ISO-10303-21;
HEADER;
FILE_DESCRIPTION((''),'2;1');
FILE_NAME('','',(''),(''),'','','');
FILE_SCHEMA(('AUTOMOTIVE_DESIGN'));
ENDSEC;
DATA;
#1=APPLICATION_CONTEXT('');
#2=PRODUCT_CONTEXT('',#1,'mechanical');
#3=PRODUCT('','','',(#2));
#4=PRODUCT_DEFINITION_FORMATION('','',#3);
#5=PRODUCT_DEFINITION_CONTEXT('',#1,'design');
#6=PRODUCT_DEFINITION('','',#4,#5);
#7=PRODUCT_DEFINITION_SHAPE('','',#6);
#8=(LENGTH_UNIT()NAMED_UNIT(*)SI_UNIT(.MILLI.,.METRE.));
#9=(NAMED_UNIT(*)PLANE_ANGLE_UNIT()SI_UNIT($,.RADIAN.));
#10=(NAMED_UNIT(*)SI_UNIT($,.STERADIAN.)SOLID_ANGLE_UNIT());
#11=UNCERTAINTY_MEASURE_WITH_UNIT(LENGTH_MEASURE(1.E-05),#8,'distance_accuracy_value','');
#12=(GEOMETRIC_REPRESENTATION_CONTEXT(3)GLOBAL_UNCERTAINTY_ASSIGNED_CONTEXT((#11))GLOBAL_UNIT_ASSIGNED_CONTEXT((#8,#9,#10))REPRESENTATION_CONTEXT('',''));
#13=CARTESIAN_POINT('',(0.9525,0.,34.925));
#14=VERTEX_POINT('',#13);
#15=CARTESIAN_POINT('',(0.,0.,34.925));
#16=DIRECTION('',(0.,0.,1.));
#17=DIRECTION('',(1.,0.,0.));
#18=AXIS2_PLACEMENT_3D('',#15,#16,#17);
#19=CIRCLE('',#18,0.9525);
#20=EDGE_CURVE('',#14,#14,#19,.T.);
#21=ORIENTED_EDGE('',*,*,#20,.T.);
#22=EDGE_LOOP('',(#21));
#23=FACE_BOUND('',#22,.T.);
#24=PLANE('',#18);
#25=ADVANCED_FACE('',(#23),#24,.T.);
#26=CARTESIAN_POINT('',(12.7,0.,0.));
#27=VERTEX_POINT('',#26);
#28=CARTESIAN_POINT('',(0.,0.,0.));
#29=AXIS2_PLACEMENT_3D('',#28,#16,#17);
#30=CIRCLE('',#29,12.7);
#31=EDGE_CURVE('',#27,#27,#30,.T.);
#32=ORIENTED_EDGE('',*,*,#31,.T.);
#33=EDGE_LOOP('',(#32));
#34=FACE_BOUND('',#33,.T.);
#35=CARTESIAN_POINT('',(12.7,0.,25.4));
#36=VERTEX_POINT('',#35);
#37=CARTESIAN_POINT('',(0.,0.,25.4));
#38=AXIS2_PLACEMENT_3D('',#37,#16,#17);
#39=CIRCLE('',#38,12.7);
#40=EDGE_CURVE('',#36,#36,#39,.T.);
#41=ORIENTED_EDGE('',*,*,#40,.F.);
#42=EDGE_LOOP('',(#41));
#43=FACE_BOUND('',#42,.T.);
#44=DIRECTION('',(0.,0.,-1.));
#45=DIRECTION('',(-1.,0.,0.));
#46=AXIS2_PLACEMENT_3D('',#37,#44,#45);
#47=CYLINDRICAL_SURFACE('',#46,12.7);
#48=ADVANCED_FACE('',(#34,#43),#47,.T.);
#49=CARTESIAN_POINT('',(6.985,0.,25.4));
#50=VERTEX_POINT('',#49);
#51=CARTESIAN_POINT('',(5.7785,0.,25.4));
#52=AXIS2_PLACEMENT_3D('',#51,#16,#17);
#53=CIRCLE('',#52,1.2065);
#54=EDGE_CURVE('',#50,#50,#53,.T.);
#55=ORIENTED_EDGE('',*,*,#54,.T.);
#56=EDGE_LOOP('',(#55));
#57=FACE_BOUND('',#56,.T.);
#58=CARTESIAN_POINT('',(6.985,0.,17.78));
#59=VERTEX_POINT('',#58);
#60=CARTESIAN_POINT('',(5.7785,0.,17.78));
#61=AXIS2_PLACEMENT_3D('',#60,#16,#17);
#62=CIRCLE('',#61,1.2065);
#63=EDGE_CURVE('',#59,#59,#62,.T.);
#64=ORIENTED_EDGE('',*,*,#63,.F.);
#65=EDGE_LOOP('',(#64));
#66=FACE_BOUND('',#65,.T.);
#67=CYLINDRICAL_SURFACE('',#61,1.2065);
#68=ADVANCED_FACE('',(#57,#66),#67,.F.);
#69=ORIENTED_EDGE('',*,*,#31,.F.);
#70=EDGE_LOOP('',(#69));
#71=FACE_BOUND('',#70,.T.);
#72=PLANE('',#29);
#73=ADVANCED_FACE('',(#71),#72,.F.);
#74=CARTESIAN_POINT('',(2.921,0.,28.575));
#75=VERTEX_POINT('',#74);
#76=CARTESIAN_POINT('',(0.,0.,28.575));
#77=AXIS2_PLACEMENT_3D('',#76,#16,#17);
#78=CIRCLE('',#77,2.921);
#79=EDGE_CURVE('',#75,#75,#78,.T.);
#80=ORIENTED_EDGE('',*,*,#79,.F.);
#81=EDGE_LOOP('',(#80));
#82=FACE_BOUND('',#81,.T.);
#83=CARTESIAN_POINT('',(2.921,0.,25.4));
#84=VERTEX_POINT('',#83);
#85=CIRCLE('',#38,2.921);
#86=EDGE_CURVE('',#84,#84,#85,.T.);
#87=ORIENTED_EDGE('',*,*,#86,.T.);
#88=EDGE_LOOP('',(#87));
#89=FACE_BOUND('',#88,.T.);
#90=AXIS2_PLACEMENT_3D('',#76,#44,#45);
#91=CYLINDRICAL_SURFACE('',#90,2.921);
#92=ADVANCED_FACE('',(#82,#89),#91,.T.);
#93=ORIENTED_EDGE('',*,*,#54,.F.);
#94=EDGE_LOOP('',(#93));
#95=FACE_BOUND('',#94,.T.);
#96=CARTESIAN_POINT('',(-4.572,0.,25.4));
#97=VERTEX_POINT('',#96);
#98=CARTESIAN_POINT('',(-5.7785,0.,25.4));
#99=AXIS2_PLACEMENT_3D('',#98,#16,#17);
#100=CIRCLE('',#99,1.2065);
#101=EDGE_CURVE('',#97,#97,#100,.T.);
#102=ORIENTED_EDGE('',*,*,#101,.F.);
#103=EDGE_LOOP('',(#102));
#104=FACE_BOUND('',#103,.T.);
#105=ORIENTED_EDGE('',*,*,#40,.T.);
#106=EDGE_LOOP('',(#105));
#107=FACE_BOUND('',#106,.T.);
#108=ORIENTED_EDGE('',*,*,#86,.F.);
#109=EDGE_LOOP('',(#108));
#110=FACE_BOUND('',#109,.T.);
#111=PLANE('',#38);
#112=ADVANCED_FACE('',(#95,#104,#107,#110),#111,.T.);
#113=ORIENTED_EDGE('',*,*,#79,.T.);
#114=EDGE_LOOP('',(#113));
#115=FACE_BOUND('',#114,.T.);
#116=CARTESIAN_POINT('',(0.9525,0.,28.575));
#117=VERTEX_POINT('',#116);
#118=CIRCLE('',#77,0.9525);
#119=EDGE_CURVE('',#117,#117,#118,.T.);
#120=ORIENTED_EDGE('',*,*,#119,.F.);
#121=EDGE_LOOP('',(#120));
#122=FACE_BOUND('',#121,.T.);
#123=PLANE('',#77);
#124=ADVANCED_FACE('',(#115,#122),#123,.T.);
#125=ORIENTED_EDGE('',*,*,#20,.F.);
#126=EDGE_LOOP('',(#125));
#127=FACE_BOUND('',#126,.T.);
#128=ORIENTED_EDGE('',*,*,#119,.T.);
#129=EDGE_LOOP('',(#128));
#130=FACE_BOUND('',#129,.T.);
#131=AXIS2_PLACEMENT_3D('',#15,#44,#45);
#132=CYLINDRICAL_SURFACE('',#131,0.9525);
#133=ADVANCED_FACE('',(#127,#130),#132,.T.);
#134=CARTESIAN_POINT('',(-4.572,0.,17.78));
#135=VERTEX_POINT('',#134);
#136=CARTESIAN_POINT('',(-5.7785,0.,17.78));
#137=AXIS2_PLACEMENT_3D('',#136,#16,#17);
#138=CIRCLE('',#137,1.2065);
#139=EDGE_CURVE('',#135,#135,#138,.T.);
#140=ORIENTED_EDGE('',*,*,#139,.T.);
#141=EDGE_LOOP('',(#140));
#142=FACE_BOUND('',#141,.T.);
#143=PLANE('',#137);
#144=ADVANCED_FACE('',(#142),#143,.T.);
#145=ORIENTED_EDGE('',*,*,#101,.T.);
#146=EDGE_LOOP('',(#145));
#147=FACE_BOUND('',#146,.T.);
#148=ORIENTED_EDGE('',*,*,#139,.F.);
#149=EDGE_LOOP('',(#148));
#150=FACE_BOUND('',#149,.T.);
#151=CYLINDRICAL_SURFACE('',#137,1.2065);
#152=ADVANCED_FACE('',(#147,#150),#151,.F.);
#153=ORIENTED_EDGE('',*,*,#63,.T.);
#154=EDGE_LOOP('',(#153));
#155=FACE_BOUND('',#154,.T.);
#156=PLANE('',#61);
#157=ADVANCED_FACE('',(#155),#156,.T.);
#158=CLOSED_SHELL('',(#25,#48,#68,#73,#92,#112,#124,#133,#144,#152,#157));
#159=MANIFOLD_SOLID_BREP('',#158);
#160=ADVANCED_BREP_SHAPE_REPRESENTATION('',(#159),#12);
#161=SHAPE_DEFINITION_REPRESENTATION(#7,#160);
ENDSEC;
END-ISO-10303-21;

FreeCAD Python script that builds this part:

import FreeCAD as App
import Part
import Sketcher
from FreeCAD import Vector
Q = App.Units.Quantity

doc = App.newDocument("Part")
params = doc.addObject("Spreadsheet::Sheet", "Params")
for row, (alias, value) in enumerate([
    ("sketch1_diameter", "1 in"),
    ("pad1_length", "1 in"),
    ("sketch2_diameter", "0.23 in"),
    ("pad2_length", "0.125 in"),
    ("sketch3_diameter", "0.095 in"),
    ("pocket1_length", "0.3 in"),
    ("sketch4_diameter", "0.075 in"),
    ("pad3_length", "0.25 in"),
], start=1):
    params.set(f"A{row}", alias)
    params.set(f"B{row}", "=" + value)
    params.setAlias(f"B{row}", alias)

body = doc.addObject("PartDesign::Body", "Body")

sketch1 = body.newObject("Sketcher::SketchObject", "Sketch")
sketch1.AttachmentSupport = (doc.getObject("XY_Plane"), [""])
sketch1.MapMode = "FlatFace"
sketch1.addGeometry(Part.Circle(Vector(0, 0, 0), Vector(0, 0, 1), 13), False)
sketch1.addConstraint(Sketcher.Constraint("Coincident", 0, 3, -1, 1))
sketch1.addConstraint(Sketcher.Constraint("Diameter", 0, Q("1 in")))
sketch1.setExpression("Constraints[1]", "Params.sketch1_diameter")
pad1 = body.newObject("PartDesign::Pad", "Pad")
pad1.Profile = sketch1
pad1.setExpression("Length", "Params.pad1_length")

sketch2 = body.newObject("Sketcher::SketchObject", "Sketch001")
sketch2.AttachmentSupport = (doc.getObject("XY_Plane"), [""])
sketch2.MapMode = "FlatFace"
sketch2.AttachmentOffset = App.Placement(Vector(0, 0, 1 * 25.4), App.Rotation())
sketch2.addGeometry(Part.Circle(Vector(0, 0, 0), Vector(0, 0, 1), 2.9), False)
sketch2.addConstraint(Sketcher.Constraint("Coincident", 0, 3, -1, 1))
sketch2.addConstraint(Sketcher.Constraint("Diameter", 0, Q("0.23 in")))
sketch2.setExpression("Constraints[1]", "Params.sketch2_diameter")
pad2 = body.newObject("PartDesign::Pad", "Pad001")
pad2.Profile = sketch2
pad2.setExpression("Length", "Params.pad2_length")

sketch3 = body.newObject("Sketcher::SketchObject", "Sketch002")
sketch3.AttachmentSupport = (doc.getObject("XY_Plane"), [""])
sketch3.MapMode = "FlatFace"
sketch3.AttachmentOffset = App.Placement(Vector(0, 0, 1 * 25.4), App.Rotation())
sketch3.addGeometry(Part.Circle(Vector(-5.8, 0, 0), Vector(0, 0, 1), 1.2), False)
sketch3.addGeometry(Part.Circle(Vector(5.8, 0, 0), Vector(0, 0, 1), 1.2), False)
sketch3.addConstraint(Sketcher.Constraint("Equal", 0, 1))
sketch3.addConstraint(Sketcher.Constraint("Symmetric", 0, 3, 1, 3, -1, 1))
sketch3.addConstraint(Sketcher.Constraint("PointOnObject", 0, 3, -1))
sketch3.addConstraint(Sketcher.Constraint("Diameter", 0, Q("0.095 in")))
sketch3.addConstraint(Sketcher.Constraint("DistanceX", 0, 3, 1, 3, Q("0.455 in")))
sketch3.setExpression("Constraints[3]", "Params.sketch3_diameter")
pocket1 = body.newObject("PartDesign::Pocket", "Pocket")
pocket1.Profile = sketch3
pocket1.setExpression("Length", "Params.pocket1_length")

sketch4 = body.newObject("Sketcher::SketchObject", "Sketch003")
sketch4.AttachmentSupport = (doc.getObject("XY_Plane"), [""])
sketch4.MapMode = "FlatFace"
sketch4.AttachmentOffset = App.Placement(Vector(0, 0, 1.125 * 25.4), App.Rotation())
sketch4.addGeometry(Part.Circle(Vector(0, 0, 0), Vector(0, 0, 1), 1), False)
sketch4.addConstraint(Sketcher.Constraint("Coincident", 0, 3, -1, 1))
sketch4.addConstraint(Sketcher.Constraint("Diameter", 0, Q("0.075 in")))
sketch4.setExpression("Constraints[1]", "Params.sketch4_diameter")
pad3 = body.newObject("PartDesign::Pad", "Pad002")
pad3.Profile = sketch4
pad3.setExpression("Length", "Params.pad3_length")

doc.recompute()
